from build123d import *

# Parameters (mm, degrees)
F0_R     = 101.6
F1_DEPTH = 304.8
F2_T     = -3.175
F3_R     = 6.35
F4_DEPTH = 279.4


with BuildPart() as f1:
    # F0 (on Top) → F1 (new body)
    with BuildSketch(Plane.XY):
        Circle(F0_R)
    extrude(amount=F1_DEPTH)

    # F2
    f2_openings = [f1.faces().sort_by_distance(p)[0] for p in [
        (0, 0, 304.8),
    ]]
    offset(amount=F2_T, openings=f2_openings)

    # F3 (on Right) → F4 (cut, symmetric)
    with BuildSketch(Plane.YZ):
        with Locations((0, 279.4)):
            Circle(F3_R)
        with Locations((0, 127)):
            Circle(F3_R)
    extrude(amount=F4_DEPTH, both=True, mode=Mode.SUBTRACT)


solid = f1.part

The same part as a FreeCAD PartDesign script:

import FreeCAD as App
import Part
import Sketcher

V = App.Vector
Q = App.Units.Quantity


def faces_at(feature, points):
    """Names of the faces that lie closest to the given points."""
    faces = feature.Shape.Faces
    near = lambda p: min(range(len(faces)), key=lambda i: faces[i].distToShape(Part.Vertex(*p))[0])
    return sorted({f"Face{near(p) + 1}" for p in points})

doc = App.newDocument("Part")
body = doc.addObject("PartDesign::Body", "Body")

# Sketch on XY plane
sketch1 = doc.addObject("Sketcher::SketchObject", "Sketch")
body.addObject(sketch1)
sketch1.AttachmentSupport = (doc.XY_Plane, [""])
sketch1.MapMode = "FlatFace"
sketch1.addGeometry(Part.Circle(V(0, 0, 0), V(0, 0, 1), 101.6), False)
sketch1.addConstraint([
    Sketcher.Constraint("Coincident", 0, 3, -1, 1),
    Sketcher.Constraint("Diameter", 0, Q("8 in")),
])
pad1 = doc.addObject("PartDesign::Pad", "Pad")
body.addObject(pad1)
pad1.Profile = sketch1
pad1.Length = Q("12 in")
doc.recompute()

thickness = doc.addObject("PartDesign::Thickness", "Thickness")
body.addObject(thickness)
thickness.Base = (pad1, faces_at(pad1, [(0, 0, 304.8)]))
thickness.Value = Q("0.125 in")
thickness.Reversed = True
thickness.Join = "Arc"

# Sketch on YZ plane
sketch2 = doc.addObject("Sketcher::SketchObject", "Sketch001")
body.addObject(sketch2)
sketch2.AttachmentSupport = (doc.YZ_Plane, [""])
sketch2.MapMode = "FlatFace"
sketch2.addGeometry([
    Part.Circle(V(0, 279.4, 0), V(0, 0, 1), 6.35),
    Part.Circle(V(0, 127, 0), V(0, 0, 1), 6.35),
], False)
sketch2.addConstraint([
    Sketcher.Constraint("Equal", 0, 1),
    Sketcher.Constraint("PointOnObject", 0, 3, -2),
    Sketcher.Constraint("PointOnObject", 1, 3, -2),
    Sketcher.Constraint("Diameter", 0, Q("0.5 in")),
    Sketcher.Constraint("DistanceY", -1, 1, 0, 3, Q("11 in")),
    Sketcher.Constraint("DistanceY", -1, 1, 1, 3, Q("5 in")),
])
pocket1 = doc.addObject("PartDesign::Pocket", "Pocket")
body.addObject(pocket1)
pocket1.Profile = sketch2
pocket1.Length = Q("22 in")
pocket1.Midplane = True

doc.recompute()
